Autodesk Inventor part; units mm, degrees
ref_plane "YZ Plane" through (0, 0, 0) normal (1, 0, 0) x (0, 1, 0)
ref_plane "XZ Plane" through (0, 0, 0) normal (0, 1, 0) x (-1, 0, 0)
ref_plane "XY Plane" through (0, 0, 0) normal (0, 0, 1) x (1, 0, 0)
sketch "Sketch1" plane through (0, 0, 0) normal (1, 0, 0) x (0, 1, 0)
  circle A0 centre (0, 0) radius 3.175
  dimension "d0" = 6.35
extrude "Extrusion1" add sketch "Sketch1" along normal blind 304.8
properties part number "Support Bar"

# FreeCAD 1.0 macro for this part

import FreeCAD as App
import Part
import Sketcher
Q = App.Units.Quantity

doc = App.newDocument("Part")
body = doc.addObject("PartDesign::Body", "Body")

sketch1 = body.newObject("Sketcher::SketchObject", "Sketch")
sketch1.AttachmentSupport = (doc.getObject("YZ_Plane"), [""])
sketch1.MapMode = "FlatFace"
sketch1.addGeometry(Part.Circle(App.Vector(0, 0, 0), App.Vector(0, 0, 1), 3.2), False)
sketch1.addConstraint([
    Sketcher.Constraint("Coincident", 0, 3, -1, 1),
    Sketcher.Constraint("Diameter", 0, Q("0.25 in")),
])
pad1 = body.newObject("PartDesign::Pad", "Pad")
pad1.Profile = sketch1
pad1.Length = Q("12 in")

doc.recompute()
